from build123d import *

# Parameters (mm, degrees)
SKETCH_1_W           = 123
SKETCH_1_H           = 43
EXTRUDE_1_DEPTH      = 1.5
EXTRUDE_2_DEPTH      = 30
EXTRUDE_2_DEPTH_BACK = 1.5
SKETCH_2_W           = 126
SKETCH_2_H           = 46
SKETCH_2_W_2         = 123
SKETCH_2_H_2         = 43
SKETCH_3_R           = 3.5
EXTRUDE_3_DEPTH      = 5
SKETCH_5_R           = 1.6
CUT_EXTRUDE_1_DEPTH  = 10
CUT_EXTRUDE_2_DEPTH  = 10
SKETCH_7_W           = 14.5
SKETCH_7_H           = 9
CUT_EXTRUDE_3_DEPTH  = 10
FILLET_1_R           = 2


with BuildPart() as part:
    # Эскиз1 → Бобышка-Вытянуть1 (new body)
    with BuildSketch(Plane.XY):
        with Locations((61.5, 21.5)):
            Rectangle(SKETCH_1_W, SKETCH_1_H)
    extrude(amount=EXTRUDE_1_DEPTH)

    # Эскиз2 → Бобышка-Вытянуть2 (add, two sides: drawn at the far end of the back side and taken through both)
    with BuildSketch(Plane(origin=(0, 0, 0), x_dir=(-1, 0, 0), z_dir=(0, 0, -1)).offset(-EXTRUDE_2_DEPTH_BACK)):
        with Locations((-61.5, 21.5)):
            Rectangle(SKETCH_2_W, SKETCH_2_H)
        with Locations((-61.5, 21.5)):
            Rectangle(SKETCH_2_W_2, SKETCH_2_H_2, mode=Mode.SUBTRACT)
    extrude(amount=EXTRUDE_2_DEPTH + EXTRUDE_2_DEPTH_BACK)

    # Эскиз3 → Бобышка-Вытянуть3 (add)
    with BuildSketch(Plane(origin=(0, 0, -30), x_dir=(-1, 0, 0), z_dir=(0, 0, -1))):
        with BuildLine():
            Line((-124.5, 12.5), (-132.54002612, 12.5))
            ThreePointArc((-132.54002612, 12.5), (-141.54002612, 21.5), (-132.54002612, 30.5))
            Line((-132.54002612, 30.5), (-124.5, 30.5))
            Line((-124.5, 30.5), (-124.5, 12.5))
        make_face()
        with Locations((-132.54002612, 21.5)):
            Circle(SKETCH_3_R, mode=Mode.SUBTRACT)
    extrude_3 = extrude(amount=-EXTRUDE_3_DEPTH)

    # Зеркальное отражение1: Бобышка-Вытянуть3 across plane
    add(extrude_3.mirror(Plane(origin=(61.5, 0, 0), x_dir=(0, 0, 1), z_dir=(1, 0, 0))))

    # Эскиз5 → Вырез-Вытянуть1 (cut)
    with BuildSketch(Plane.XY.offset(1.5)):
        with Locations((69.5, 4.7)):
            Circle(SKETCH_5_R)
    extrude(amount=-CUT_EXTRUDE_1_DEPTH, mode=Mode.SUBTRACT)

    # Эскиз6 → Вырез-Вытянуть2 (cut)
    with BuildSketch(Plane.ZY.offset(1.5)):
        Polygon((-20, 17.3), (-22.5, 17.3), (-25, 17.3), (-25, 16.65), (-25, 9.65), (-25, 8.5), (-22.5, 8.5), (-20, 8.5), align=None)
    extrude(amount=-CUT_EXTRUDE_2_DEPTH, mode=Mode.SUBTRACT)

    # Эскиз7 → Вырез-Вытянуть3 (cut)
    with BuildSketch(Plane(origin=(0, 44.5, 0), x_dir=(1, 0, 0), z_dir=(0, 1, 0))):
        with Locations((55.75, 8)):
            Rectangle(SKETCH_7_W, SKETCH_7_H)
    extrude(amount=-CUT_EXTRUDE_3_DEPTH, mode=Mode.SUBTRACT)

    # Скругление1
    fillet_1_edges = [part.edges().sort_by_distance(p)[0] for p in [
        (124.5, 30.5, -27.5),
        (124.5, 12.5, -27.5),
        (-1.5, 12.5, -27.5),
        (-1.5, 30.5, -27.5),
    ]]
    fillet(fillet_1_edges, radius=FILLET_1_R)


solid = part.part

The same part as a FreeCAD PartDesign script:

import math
import FreeCAD as App
import Part
import Sketcher
from FreeCAD import Vector


def edges_at(feature, points):
    """Names of the edges that pass closest to the given points."""
    edges = feature.Shape.Edges
    near = lambda p: min(range(len(edges)), key=lambda i: edges[i].distToShape(Part.Vertex(*p))[0])
    return sorted({f"Edge{near(p) + 1}" for p in points})


def add_polygon(sketch, points):
    """Adds a closed chain of lines whose ends are joined by coincident constraints."""
    first, n = sketch.GeometryCount, len(points)
    for a, b in zip(points, points[1:] + points[:1]):
        sketch.addGeometry(Part.LineSegment(App.Vector(*a, 0), App.Vector(*b, 0)), False)
    for i in range(n):
        sketch.addConstraint(Sketcher.Constraint("Coincident", first + i, 2, first + (i + 1) % n, 1))

doc = App.newDocument("Part")
body = doc.addObject("PartDesign::Body", "Body")

# Sketch on XY plane
sketch1 = body.newObject("Sketcher::SketchObject", "Sketch")
sketch1.AttachmentSupport = (doc.getObject("XY_Plane"), [""])
sketch1.MapMode = "FlatFace"
add_polygon(sketch1, [(0, 43), (0, 0), (123, 0), (123, 43)])  # lines 0-3
sketch1.addConstraint([
    Sketcher.Constraint("Vertical", 0),
    Sketcher.Constraint("Horizontal", 1),
    Sketcher.Constraint("Vertical", 2),
    Sketcher.Constraint("Horizontal", 3),
    Sketcher.Constraint("Coincident", 0, 2, -1, 1),
    Sketcher.Constraint("DistanceX", 1, 1, 1, 2, 123.0),
    Sketcher.Constraint("DistanceY", 0, 2, 0, 1, 43.0),
])
pad1 = body.newObject("PartDesign::Pad", "Pad")
pad1.Profile = sketch1
pad1.Length = 1.5

# Sketch on XY plane
sketch2 = body.newObject("Sketcher::SketchObject", "Sketch001")
sketch2.AttachmentSupport = (doc.getObject("XY_Plane"), [""])
sketch2.MapMode = "FlatFace"
add_polygon(sketch2, [(124.5, 44.5), (124.5, -1.5), (-1.5, -1.5), (-1.5, 44.5)])  # lines 0-3
add_polygon(sketch2, [(0, 0), (123, 0), (123, 43), (0, 43)])  # lines 4-7
sketch2.addConstraint([
    Sketcher.Constraint("Vertical", 0),
    Sketcher.Constraint("Horizontal", 1),
    Sketcher.Constraint("Vertical", 2),
    Sketcher.Constraint("Horizontal", 3),
    Sketcher.Constraint("Horizontal", 4),
    Sketcher.Constraint("Vertical", 5),
    Sketcher.Constraint("Horizontal", 6),
    Sketcher.Constraint("Vertical", 7),
    Sketcher.Constraint("Coincident", 7, 2, -1, 1),
    Sketcher.Constraint("DistanceX", 1, 2, 1, 1, 126.0),
    Sketcher.Constraint("DistanceX", 4, 1, 4, 2, 123.0),
    Sketcher.Constraint("DistanceY", 0, 2, 0, 1, 46.0),
    Sketcher.Constraint("DistanceY", 5, 1, 5, 2, 43.0),
    Sketcher.Constraint("DistanceX", -1, 1, 0, 2, 124.5),
    Sketcher.Constraint("DistanceY", 0, 2, -1, 1, 1.5),
])
pad2 = body.newObject("PartDesign::Pad", "Pad001")
pad2.Profile = sketch2
pad2.Type = "TwoLengths"
pad2.Length = 30
pad2.Length2 = 1.5
pad2.Reversed = True

# Sketch on XY plane
sketch3 = body.newObject("Sketcher::SketchObject", "Sketch002")
sketch3.AttachmentSupport = (doc.getObject("XY_Plane"), [""])
sketch3.MapMode = "FlatFace"
sketch3.AttachmentOffset = App.Placement(Vector(0, 0, -30), App.Rotation())
sketch3.addGeometry([
    Part.LineSegment(Vector(132.540026, 12.5, 0), Vector(124.5, 12.5, 0)),  # 0
    Part.LineSegment(Vector(124.5, 12.5, 0), Vector(124.5, 30.5, 0)),  # 1
    Part.LineSegment(Vector(124.5, 30.5, 0), Vector(132.540026, 30.5, 0)),  # 2
    Part.ArcOfCircle(Part.Circle(Vector(132.540026, 21.5, 0), Vector(0, 0, 1), 9), math.radians(-90), math.radians(90)),  # 3
    Part.Circle(Vector(132.540026, 21.5, 0), Vector(0, 0, 1), 3.5),  # 4
], False)
sketch3.addConstraint([
    Sketcher.Constraint("Coincident", 0, 2, 1, 1),
    Sketcher.Constraint("Coincident", 1, 2, 2, 1),
    Sketcher.Constraint("Tangent", 2, 2, 3, 2),
    Sketcher.Constraint("Tangent", 3, 1, 0, 1),
    Sketcher.Constraint("Horizontal", 0),
    Sketcher.Constraint("Vertical", 1),
    Sketcher.Constraint("Horizontal", 2),
    Sketcher.Constraint("Coincident", 4, 3, 3, 3),
    Sketcher.Constraint("Diameter", 4, 7.0),
    Sketcher.Constraint("Radius", 3, 9.0),
    Sketcher.Constraint("DistanceY", -1, 1, 3, 3, 21.5),
    Sketcher.Constraint("DistanceX", -1, 1, 0, 2, 124.5),
    Sketcher.Constraint("DistanceX", 0, 2, 0, 1, 8.040026),
])
pad3 = body.newObject("PartDesign::Pad", "Pad002")
pad3.Profile = sketch3
pad3.Length = 5
doc.recompute()

datumplane = body.newObject("PartDesign::Plane", "DatumPlane")
datumplane.AttachmentSupport = (doc.getObject("YZ_Plane"), [""])
datumplane.MapMode = "FlatFace"
datumplane.AttachmentOffset = App.Placement(Vector(0, 0, 61.5), App.Rotation())
mirrored = body.newObject("PartDesign::Mirrored", "Mirrored")
mirrored.Originals = [pad3]
mirrored.MirrorPlane = (datumplane, [""])
body.Tip = mirrored

# Sketch on XY plane
sketch4 = body.newObject("Sketcher::SketchObject", "Sketch003")
sketch4.AttachmentSupport = (doc.getObject("XY_Plane"), [""])
sketch4.MapMode = "FlatFace"
sketch4.AttachmentOffset = App.Placement(Vector(0, 0, 1.5), App.Rotation())
sketch4.addGeometry(Part.Circle(Vector(69.5, 4.7, 0), Vector(0, 0, 1), 1.6), False)
sketch4.addConstraint([
    Sketcher.Constraint("Diameter", 0, 3.2),
    Sketcher.Constraint("DistanceX", -1, 1, 0, 3, 69.5),
    Sketcher.Constraint("DistanceY", -1, 1, 0, 3, 4.7),
])
pocket1 = body.newObject("PartDesign::Pocket", "Pocket")
pocket1.Profile = sketch4
pocket1.Length = 10

# Sketch on YZ plane
sketch5 = body.newObject("Sketcher::SketchObject", "Sketch004")
sketch5.AttachmentSupport = (doc.getObject("YZ_Plane"), [""])
sketch5.MapMode = "FlatFace"
sketch5.AttachmentOffset = App.Placement(Vector(0, 0, -1.5), App.Rotation())
add_polygon(sketch5, [(17.3, -20), (17.3, -25), (8.5, -25), (8.5, -20)])  # lines 0-3
sketch5.addConstraint([
    Sketcher.Constraint("Vertical", 0),
    Sketcher.Constraint("Horizontal", 1),
    Sketcher.Constraint("Vertical", 2),
    Sketcher.Constraint("Horizontal", 3),
    Sketcher.Constraint("DistanceY", 0, 2, 0, 1, 5.0),
    Sketcher.Constraint("DistanceX", 1, 2, 1, 1, 8.8),
    Sketcher.Constraint("DistanceY", 0, 2, -1, 1, 25.0),
    Sketcher.Constraint("DistanceX", -1, 1, 0, 2, 17.3),
])
pocket2 = body.newObject("PartDesign::Pocket", "Pocket001")
pocket2.Profile = sketch5
pocket2.Length = 10
pocket2.Reversed = True

# Sketch on XZ plane
sketch6 = body.newObject("Sketcher::SketchObject", "Sketch005")
sketch6.AttachmentSupport = (doc.getObject("XZ_Plane"), [""])
sketch6.MapMode = "FlatFace"
sketch6.AttachmentOffset = App.Placement(Vector(0, 0, -44.5), App.Rotation())
add_polygon(sketch6, [(48.5, -12.5), (48.5, -3.5), (63, -3.5), (63, -12.5)])  # lines 0-3
sketch6.addConstraint([
    Sketcher.Constraint("Vertical", 0),
    Sketcher.Constraint("Horizontal", 1),
    Sketcher.Constraint("Vertical", 2),
    Sketcher.Constraint("Horizontal", 3),
    Sketcher.Constraint("DistanceY", 0, 1, 0, 2, 9.0),
    Sketcher.Constraint("DistanceX", 1, 1, 1, 2, 14.5),
    Sketcher.Constraint("DistanceX", -1, 1, 1, 2, 63.0),
    Sketcher.Constraint("DistanceY", 0, 2, -1, 1, 3.5),
])
pocket3 = body.newObject("PartDesign::Pocket", "Pocket002")
pocket3.Profile = sketch6
pocket3.Length = 10
pocket3.Reversed = True
doc.recompute()

fillet = body.newObject("PartDesign::Fillet", "Fillet")
fillet.Base = (pocket3, edges_at(pocket3, [
    (124.5, 30.5, -27.5),
    (124.5, 12.5, -27.5),
    (-1.5, 12.5, -27.5),
    (-1.5, 30.5, -27.5),
]))
fillet.Radius = 2

doc.recompute()
